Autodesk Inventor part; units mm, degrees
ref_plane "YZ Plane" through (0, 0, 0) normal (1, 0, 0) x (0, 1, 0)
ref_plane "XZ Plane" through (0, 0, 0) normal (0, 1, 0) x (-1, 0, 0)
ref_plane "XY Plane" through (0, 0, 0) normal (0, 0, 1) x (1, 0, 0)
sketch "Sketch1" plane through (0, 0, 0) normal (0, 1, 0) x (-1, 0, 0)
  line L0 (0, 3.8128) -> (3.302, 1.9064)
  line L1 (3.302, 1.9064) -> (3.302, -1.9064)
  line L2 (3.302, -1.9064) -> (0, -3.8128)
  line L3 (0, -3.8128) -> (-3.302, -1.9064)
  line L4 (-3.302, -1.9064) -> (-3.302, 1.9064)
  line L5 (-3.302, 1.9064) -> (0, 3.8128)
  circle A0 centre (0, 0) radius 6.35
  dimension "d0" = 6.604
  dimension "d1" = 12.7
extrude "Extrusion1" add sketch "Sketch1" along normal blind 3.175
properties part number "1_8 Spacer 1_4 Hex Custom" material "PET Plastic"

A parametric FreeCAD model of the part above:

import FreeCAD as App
import Part
import Sketcher
Q = App.Units.Quantity

doc = App.newDocument("Part")
params = doc.addObject("Spreadsheet::Sheet", "Params")
for row, (alias, value) in enumerate([
    ("sketch1_diameter", "0.5 in"),
    ("pad1_length", "0.125 in"),
], start=1):
    params.set(f"A{row}", alias)
    params.set(f"B{row}", "=" + value)
    params.setAlias(f"B{row}", alias)

body = doc.addObject("PartDesign::Body", "Body")

# Sketch on XZ plane
sketch1 = doc.addObject("Sketcher::SketchObject", "Sketch")
body.addObject(sketch1)
sketch1.AttachmentSupport = (doc.XZ_Plane, [""])
sketch1.MapMode = "FlatFace"
sketch1.addGeometry([
    Part.Circle(App.Vector(0, 0, 0), App.Vector(0, 0, 1), 6.3),  # 0
    Part.LineSegment(App.Vector(3.3, 1.9, 0), App.Vector(0, 3.8, 0)),  # 1
    Part.LineSegment(App.Vector(0, 3.8, 0), App.Vector(-3.3, 1.9, 0)),  # 2
    Part.LineSegment(App.Vector(-3.3, 1.9, 0), App.Vector(-3.3, -1.9, 0)),  # 3
    Part.LineSegment(App.Vector(-3.3, -1.9, 0), App.Vector(0, -3.8, 0)),  # 4
    Part.LineSegment(App.Vector(0, -3.8, 0), App.Vector(3.3, -1.9, 0)),  # 5
    Part.LineSegment(App.Vector(3.3, -1.9, 0), App.Vector(3.3, 1.9, 0)),  # 6
], False)
sketch1.addConstraint([
    Sketcher.Constraint("Coincident", 1, 2, 2, 1),
    Sketcher.Constraint("Coincident", 2, 2, 3, 1),
    Sketcher.Constraint("Coincident", 3, 2, 4, 1),
    Sketcher.Constraint("Coincident", 4, 2, 5, 1),
    Sketcher.Constraint("Coincident", 5, 2, 6, 1),
    Sketcher.Constraint("Coincident", 6, 2, 1, 1),
    Sketcher.Constraint("Vertical", 3),
    Sketcher.Constraint("Vertical", 6),
    Sketcher.Constraint("Coincident", 0, 3, -1, 1),
    Sketcher.Constraint("Symmetric", 1, 2, 4, 2, -1, 1),
    Sketcher.Constraint("Symmetric", 2, 2, 5, 2, -1, 1),
    Sketcher.Constraint("PointOnObject", 1, 2, -2),
    Sketcher.Constraint("Parallel", 1, 4),
    Sketcher.Constraint("Horizontal", 3, 2, 5, 2),
    Sketcher.Constraint("Diameter", 0, Q("0.5 in")),
    Sketcher.Constraint("DistanceX", 3, 2, 5, 2, Q("0.26 in")),
    Sketcher.Constraint("Angle", 1, Q("150.0001 deg")),
    Sketcher.Constraint("DistanceY", 3, 2, 3, 1, Q("0.1501 in")),
])
sketch1.setExpression("Constraints[14]", "Params.sketch1_diameter")
pad1 = doc.addObject("PartDesign::Pad", "Pad")
body.addObject(pad1)
pad1.Profile = sketch1
pad1.setExpression("Length", "Params.pad1_length")
pad1.Reversed = True

doc.recompute()
